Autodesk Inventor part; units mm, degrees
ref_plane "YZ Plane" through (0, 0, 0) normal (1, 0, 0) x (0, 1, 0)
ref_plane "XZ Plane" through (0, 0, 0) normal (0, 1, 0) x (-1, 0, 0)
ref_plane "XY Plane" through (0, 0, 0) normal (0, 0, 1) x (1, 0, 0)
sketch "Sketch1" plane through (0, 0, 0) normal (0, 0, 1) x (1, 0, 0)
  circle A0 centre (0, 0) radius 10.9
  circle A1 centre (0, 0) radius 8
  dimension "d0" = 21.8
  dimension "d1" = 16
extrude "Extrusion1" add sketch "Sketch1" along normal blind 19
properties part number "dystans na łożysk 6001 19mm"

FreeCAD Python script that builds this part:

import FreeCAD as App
import Part
import Sketcher

doc = App.newDocument("Part")
body = doc.addObject("PartDesign::Body", "Body")

# Sketch on XY plane
sketch1 = doc.addObject("Sketcher::SketchObject", "Sketch")
body.addObject(sketch1)
sketch1.AttachmentSupport = (doc.XY_Plane, [""])
sketch1.MapMode = "FlatFace"
sketch1.addGeometry([
    Part.Circle(App.Vector(0, 0, 0), App.Vector(0, 0, 1), 10.9),
    Part.Circle(App.Vector(0, 0, 0), App.Vector(0, 0, 1), 8),
], False)
sketch1.addConstraint([
    Sketcher.Constraint("Coincident", 0, 3, -1, 1),
    Sketcher.Constraint("Coincident", 1, 3, -1, 1),
    Sketcher.Constraint("Diameter", 1, 16.0),
    Sketcher.Constraint("Diameter", 0, 21.8),
])
pad1 = doc.addObject("PartDesign::Pad", "Pad")
body.addObject(pad1)
pad1.Profile = sketch1
pad1.Length = 19

doc.recompute()
